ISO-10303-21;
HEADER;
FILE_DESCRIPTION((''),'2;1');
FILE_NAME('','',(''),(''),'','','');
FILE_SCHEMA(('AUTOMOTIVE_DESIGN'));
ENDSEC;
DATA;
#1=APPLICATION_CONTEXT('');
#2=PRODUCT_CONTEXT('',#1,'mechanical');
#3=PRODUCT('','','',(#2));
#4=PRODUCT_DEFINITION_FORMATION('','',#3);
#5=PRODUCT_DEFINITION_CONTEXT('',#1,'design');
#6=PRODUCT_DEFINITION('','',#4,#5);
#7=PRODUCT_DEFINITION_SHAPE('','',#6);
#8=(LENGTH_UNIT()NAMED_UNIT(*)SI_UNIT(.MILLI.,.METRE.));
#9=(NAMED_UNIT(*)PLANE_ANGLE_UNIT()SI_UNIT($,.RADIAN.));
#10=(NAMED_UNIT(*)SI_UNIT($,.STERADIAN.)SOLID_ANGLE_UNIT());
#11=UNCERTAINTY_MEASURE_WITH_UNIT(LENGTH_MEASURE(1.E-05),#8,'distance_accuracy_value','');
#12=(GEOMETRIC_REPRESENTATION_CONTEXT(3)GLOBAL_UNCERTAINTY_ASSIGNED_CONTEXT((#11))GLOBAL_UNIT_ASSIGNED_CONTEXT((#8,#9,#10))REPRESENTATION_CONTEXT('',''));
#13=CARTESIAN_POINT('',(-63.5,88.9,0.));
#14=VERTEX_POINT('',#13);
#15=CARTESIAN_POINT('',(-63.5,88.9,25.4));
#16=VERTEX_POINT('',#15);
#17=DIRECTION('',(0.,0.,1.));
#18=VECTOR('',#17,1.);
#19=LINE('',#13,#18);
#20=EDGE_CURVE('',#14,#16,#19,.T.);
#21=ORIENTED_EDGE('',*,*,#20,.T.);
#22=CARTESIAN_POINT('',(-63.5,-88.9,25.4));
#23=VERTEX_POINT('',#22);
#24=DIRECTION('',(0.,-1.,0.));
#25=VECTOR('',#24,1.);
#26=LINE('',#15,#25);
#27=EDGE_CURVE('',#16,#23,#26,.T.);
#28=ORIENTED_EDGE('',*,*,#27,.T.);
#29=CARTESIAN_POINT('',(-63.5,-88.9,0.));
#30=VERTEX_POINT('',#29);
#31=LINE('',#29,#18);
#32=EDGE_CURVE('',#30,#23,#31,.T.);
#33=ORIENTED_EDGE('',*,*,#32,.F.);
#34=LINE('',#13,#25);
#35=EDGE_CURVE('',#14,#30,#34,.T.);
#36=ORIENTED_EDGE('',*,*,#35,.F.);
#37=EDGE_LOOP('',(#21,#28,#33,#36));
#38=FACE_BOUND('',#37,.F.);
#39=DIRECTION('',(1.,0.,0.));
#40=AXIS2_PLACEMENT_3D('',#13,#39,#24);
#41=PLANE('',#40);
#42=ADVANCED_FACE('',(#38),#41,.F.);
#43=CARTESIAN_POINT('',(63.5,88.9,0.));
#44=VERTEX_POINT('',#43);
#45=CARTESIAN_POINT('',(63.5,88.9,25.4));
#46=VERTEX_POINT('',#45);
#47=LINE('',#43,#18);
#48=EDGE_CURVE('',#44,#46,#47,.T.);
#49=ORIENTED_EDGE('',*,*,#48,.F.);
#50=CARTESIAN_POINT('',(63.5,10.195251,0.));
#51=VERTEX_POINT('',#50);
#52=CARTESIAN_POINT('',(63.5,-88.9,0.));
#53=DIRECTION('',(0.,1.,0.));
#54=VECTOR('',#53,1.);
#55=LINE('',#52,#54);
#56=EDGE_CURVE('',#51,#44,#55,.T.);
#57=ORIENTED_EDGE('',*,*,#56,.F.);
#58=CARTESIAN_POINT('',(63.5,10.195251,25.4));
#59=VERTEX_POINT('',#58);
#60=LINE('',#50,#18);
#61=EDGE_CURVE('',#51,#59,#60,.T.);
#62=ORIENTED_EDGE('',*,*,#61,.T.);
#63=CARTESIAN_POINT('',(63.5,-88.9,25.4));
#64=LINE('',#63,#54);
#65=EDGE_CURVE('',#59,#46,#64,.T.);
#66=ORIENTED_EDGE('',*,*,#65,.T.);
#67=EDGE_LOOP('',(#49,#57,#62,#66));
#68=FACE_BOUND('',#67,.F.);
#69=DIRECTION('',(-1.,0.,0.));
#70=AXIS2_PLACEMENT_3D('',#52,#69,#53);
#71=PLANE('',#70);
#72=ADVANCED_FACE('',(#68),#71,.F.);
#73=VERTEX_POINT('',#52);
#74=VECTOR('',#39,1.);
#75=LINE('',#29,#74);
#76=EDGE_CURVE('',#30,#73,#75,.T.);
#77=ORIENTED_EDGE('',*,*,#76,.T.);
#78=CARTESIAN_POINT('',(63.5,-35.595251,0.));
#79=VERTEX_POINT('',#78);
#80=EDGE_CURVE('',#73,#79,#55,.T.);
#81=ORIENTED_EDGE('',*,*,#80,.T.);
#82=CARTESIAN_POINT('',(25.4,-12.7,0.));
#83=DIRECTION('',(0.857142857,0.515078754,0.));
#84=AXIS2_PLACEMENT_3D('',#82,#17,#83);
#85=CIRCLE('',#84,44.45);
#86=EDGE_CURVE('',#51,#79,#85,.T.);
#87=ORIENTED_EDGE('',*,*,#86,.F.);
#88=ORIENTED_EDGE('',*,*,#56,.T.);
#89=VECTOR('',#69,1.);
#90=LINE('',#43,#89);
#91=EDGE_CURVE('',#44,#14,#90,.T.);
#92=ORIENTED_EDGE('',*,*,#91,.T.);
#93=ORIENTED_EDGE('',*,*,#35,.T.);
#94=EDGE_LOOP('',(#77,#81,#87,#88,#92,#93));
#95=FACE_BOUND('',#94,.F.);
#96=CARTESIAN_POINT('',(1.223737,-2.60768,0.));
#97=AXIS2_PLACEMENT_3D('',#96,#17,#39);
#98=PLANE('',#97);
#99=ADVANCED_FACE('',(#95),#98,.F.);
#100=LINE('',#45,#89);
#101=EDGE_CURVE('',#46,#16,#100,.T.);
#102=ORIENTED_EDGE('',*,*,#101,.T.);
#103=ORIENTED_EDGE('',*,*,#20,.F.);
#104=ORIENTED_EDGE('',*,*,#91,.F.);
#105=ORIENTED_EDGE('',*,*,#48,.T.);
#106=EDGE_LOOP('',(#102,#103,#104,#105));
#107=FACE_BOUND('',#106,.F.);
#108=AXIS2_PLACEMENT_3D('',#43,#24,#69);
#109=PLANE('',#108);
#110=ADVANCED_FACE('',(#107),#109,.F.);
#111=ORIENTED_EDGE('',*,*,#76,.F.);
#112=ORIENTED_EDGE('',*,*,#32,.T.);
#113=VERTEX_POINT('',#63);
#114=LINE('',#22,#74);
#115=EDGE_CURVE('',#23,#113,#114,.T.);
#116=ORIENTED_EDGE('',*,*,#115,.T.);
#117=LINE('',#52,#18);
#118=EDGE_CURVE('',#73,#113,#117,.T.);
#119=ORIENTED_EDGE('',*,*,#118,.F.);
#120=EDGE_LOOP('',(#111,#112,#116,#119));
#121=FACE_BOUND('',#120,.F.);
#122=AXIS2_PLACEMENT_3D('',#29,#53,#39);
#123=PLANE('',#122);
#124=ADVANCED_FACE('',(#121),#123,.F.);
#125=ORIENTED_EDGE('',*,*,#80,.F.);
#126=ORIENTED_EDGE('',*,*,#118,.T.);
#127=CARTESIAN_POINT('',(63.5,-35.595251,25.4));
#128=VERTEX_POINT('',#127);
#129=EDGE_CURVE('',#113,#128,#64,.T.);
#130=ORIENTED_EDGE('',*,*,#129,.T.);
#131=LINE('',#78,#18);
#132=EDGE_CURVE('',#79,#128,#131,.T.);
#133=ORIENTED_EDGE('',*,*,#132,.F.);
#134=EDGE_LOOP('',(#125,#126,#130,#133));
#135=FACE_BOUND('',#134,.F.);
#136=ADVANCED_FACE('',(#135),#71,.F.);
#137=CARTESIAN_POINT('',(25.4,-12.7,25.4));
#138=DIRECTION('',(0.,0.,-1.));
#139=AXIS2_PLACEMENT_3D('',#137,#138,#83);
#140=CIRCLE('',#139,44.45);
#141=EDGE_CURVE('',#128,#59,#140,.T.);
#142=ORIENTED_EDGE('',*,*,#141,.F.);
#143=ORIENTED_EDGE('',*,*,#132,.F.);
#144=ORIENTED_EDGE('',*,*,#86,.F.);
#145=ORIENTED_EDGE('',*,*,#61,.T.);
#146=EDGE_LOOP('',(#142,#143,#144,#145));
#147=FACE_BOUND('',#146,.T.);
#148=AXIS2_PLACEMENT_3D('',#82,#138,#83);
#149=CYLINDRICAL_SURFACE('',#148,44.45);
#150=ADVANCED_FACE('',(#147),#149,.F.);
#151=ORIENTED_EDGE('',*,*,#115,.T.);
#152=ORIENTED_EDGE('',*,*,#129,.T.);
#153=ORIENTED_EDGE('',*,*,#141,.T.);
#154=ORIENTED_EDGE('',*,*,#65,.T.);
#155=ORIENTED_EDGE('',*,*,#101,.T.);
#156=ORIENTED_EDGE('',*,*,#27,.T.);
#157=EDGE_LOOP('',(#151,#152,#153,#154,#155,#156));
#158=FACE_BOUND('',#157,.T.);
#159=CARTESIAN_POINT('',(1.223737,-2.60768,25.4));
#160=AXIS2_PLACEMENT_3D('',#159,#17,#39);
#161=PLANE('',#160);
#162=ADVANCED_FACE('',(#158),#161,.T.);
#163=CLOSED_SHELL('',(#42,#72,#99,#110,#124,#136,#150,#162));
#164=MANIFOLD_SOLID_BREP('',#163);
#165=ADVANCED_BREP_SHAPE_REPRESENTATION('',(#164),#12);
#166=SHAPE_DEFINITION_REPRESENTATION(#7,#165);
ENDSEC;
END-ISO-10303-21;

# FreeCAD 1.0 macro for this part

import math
import FreeCAD as App
import Part
import Sketcher
from FreeCAD import Vector
Q = App.Units.Quantity


def add_polygon(sketch, points):
    """Adds a closed chain of lines whose ends are joined by coincident constraints."""
    first, n = sketch.GeometryCount, len(points)
    for a, b in zip(points, points[1:] + points[:1]):
        sketch.addGeometry(Part.LineSegment(App.Vector(*a, 0), App.Vector(*b, 0)), False)
    for i in range(n):
        sketch.addConstraint(Sketcher.Constraint("Coincident", first + i, 2, first + (i + 1) % n, 1))

doc = App.newDocument("Part")
body = doc.addObject("PartDesign::Body", "Body")

sketch1 = body.newObject("Sketcher::SketchObject", "Sketch")
sketch1.AttachmentSupport = (doc.getObject("XY_Plane"), [""])
sketch1.MapMode = "FlatFace"
add_polygon(sketch1, [(64, 89), (-64, 89), (-64, -89), (64, -89)])
sketch1.addConstraint(Sketcher.Constraint("Horizontal", 0))
sketch1.addConstraint(Sketcher.Constraint("Vertical", 1))
sketch1.addConstraint(Sketcher.Constraint("Horizontal", 2))
sketch1.addConstraint(Sketcher.Constraint("Vertical", 3))
sketch1.addConstraint(Sketcher.Constraint("Symmetric", 0, 2, 2, 2, -1, 1))
sketch1.addConstraint(Sketcher.Constraint("DistanceX", 0, 2, 0, 1, Q("5 in")))
sketch1.addConstraint(Sketcher.Constraint("DistanceY", 1, 2, 1, 1, Q("7 in")))
pad1 = body.newObject("PartDesign::Pad", "Pad")
pad1.Profile = sketch1
pad1.Length = Q("1 in")

sketch2 = body.newObject("Sketcher::SketchObject", "Sketch001")
sketch2.AttachmentSupport = (doc.getObject("XY_Plane"), [""])
sketch2.MapMode = "FlatFace"
sketch2.addGeometry(Part.LineSegment(Vector(64, -36, 0), Vector(64, 10, 0)), False)
sketch2.addGeometry(Part.ArcOfCircle(Part.Circle(Vector(25, -13, 0), Vector(0, 0, 1), 44), math.radians(31), math.radians(329)), False)
sketch2.addConstraint(Sketcher.Constraint("Coincident", 0, 1, 1, 2))
sketch2.addConstraint(Sketcher.Constraint("Coincident", 1, 1, 0, 2))
sketch2.addConstraint(Sketcher.Constraint("Vertical", 0))
sketch2.addConstraint(Sketcher.Constraint("Radius", 1, Q("1.75 in")))
sketch2.addConstraint(Sketcher.Constraint("DistanceX", -1, 1, 1, 3, Q("1 in")))
sketch2.addConstraint(Sketcher.Constraint("DistanceY", 1, 3, -1, 1, Q("0.5 in")))
sketch2.addConstraint(Sketcher.Constraint("DistanceX", -1, 1, 0, 1, Q("2.5 in")))
pocket1 = body.newObject("PartDesign::Pocket", "Pocket")
pocket1.Profile = sketch2
pocket1.Type = "ThroughAll"
pocket1.Reversed = True

doc.recompute()
